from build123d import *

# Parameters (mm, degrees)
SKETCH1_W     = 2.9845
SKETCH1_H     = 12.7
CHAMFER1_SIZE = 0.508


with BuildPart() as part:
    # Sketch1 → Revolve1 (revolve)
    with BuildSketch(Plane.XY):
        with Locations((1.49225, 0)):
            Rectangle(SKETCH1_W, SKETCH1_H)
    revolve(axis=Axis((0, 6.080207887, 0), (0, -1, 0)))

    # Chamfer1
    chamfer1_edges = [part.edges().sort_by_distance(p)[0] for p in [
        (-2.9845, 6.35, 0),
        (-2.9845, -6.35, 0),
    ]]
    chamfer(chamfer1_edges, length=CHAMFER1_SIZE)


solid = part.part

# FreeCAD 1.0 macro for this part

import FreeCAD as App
import Part
import Sketcher
from FreeCAD import Vector
Q = App.Units.Quantity


def edges_at(feature, points):
    """Names of the edges that pass closest to the given points."""
    edges = feature.Shape.Edges
    near = lambda p: min(range(len(edges)), key=lambda i: edges[i].distToShape(Part.Vertex(*p))[0])
    return sorted({f"Edge{near(p) + 1}" for p in points})


def add_polygon(sketch, points):
    """Adds a closed chain of lines whose ends are joined by coincident constraints."""
    first, n = sketch.GeometryCount, len(points)
    for a, b in zip(points, points[1:] + points[:1]):
        sketch.addGeometry(Part.LineSegment(App.Vector(*a, 0), App.Vector(*b, 0)), False)
    for i in range(n):
        sketch.addConstraint(Sketcher.Constraint("Coincident", first + i, 2, first + (i + 1) % n, 1))

doc = App.newDocument("Part")
body = doc.addObject("PartDesign::Body", "Body")

# Sketch on XY plane
sketch1 = body.newObject("Sketcher::SketchObject", "Sketch")
sketch1.AttachmentSupport = (doc.getObject("XY_Plane"), [""])
sketch1.MapMode = "FlatFace"
add_polygon(sketch1, [(0, 6.3), (0, -6.3), (3, -6.3), (3, 6.3)])  # lines 0-3
sketch1.addConstraint([
    Sketcher.Constraint("Vertical", 0),
    Sketcher.Constraint("Horizontal", 1),
    Sketcher.Constraint("Vertical", 2),
    Sketcher.Constraint("Horizontal", 3),
    Sketcher.Constraint("Symmetric", 0, 2, 3, 2, -1, 1),
    Sketcher.Constraint("DistanceY", 0, 2, 0, 1, Q("0.5 in")),
    Sketcher.Constraint("DistanceX", 1, 1, 1, 2, Q("0.1175 in")),
])
revolution = body.newObject("PartDesign::Revolution", "Revolution")
revolution.Profile = sketch1
revolution.ReferenceAxis = (sketch1, ["V_Axis"])
revolution.Angle = 360
doc.recompute()

chamfer = body.newObject("PartDesign::Chamfer", "Chamfer")
chamfer.Base = (revolution, edges_at(revolution, [(-2.985, 6.35, 0), (-2.985, -6.35, 0)]))
chamfer.Size = Q("0.02 in")

doc.recompute()
